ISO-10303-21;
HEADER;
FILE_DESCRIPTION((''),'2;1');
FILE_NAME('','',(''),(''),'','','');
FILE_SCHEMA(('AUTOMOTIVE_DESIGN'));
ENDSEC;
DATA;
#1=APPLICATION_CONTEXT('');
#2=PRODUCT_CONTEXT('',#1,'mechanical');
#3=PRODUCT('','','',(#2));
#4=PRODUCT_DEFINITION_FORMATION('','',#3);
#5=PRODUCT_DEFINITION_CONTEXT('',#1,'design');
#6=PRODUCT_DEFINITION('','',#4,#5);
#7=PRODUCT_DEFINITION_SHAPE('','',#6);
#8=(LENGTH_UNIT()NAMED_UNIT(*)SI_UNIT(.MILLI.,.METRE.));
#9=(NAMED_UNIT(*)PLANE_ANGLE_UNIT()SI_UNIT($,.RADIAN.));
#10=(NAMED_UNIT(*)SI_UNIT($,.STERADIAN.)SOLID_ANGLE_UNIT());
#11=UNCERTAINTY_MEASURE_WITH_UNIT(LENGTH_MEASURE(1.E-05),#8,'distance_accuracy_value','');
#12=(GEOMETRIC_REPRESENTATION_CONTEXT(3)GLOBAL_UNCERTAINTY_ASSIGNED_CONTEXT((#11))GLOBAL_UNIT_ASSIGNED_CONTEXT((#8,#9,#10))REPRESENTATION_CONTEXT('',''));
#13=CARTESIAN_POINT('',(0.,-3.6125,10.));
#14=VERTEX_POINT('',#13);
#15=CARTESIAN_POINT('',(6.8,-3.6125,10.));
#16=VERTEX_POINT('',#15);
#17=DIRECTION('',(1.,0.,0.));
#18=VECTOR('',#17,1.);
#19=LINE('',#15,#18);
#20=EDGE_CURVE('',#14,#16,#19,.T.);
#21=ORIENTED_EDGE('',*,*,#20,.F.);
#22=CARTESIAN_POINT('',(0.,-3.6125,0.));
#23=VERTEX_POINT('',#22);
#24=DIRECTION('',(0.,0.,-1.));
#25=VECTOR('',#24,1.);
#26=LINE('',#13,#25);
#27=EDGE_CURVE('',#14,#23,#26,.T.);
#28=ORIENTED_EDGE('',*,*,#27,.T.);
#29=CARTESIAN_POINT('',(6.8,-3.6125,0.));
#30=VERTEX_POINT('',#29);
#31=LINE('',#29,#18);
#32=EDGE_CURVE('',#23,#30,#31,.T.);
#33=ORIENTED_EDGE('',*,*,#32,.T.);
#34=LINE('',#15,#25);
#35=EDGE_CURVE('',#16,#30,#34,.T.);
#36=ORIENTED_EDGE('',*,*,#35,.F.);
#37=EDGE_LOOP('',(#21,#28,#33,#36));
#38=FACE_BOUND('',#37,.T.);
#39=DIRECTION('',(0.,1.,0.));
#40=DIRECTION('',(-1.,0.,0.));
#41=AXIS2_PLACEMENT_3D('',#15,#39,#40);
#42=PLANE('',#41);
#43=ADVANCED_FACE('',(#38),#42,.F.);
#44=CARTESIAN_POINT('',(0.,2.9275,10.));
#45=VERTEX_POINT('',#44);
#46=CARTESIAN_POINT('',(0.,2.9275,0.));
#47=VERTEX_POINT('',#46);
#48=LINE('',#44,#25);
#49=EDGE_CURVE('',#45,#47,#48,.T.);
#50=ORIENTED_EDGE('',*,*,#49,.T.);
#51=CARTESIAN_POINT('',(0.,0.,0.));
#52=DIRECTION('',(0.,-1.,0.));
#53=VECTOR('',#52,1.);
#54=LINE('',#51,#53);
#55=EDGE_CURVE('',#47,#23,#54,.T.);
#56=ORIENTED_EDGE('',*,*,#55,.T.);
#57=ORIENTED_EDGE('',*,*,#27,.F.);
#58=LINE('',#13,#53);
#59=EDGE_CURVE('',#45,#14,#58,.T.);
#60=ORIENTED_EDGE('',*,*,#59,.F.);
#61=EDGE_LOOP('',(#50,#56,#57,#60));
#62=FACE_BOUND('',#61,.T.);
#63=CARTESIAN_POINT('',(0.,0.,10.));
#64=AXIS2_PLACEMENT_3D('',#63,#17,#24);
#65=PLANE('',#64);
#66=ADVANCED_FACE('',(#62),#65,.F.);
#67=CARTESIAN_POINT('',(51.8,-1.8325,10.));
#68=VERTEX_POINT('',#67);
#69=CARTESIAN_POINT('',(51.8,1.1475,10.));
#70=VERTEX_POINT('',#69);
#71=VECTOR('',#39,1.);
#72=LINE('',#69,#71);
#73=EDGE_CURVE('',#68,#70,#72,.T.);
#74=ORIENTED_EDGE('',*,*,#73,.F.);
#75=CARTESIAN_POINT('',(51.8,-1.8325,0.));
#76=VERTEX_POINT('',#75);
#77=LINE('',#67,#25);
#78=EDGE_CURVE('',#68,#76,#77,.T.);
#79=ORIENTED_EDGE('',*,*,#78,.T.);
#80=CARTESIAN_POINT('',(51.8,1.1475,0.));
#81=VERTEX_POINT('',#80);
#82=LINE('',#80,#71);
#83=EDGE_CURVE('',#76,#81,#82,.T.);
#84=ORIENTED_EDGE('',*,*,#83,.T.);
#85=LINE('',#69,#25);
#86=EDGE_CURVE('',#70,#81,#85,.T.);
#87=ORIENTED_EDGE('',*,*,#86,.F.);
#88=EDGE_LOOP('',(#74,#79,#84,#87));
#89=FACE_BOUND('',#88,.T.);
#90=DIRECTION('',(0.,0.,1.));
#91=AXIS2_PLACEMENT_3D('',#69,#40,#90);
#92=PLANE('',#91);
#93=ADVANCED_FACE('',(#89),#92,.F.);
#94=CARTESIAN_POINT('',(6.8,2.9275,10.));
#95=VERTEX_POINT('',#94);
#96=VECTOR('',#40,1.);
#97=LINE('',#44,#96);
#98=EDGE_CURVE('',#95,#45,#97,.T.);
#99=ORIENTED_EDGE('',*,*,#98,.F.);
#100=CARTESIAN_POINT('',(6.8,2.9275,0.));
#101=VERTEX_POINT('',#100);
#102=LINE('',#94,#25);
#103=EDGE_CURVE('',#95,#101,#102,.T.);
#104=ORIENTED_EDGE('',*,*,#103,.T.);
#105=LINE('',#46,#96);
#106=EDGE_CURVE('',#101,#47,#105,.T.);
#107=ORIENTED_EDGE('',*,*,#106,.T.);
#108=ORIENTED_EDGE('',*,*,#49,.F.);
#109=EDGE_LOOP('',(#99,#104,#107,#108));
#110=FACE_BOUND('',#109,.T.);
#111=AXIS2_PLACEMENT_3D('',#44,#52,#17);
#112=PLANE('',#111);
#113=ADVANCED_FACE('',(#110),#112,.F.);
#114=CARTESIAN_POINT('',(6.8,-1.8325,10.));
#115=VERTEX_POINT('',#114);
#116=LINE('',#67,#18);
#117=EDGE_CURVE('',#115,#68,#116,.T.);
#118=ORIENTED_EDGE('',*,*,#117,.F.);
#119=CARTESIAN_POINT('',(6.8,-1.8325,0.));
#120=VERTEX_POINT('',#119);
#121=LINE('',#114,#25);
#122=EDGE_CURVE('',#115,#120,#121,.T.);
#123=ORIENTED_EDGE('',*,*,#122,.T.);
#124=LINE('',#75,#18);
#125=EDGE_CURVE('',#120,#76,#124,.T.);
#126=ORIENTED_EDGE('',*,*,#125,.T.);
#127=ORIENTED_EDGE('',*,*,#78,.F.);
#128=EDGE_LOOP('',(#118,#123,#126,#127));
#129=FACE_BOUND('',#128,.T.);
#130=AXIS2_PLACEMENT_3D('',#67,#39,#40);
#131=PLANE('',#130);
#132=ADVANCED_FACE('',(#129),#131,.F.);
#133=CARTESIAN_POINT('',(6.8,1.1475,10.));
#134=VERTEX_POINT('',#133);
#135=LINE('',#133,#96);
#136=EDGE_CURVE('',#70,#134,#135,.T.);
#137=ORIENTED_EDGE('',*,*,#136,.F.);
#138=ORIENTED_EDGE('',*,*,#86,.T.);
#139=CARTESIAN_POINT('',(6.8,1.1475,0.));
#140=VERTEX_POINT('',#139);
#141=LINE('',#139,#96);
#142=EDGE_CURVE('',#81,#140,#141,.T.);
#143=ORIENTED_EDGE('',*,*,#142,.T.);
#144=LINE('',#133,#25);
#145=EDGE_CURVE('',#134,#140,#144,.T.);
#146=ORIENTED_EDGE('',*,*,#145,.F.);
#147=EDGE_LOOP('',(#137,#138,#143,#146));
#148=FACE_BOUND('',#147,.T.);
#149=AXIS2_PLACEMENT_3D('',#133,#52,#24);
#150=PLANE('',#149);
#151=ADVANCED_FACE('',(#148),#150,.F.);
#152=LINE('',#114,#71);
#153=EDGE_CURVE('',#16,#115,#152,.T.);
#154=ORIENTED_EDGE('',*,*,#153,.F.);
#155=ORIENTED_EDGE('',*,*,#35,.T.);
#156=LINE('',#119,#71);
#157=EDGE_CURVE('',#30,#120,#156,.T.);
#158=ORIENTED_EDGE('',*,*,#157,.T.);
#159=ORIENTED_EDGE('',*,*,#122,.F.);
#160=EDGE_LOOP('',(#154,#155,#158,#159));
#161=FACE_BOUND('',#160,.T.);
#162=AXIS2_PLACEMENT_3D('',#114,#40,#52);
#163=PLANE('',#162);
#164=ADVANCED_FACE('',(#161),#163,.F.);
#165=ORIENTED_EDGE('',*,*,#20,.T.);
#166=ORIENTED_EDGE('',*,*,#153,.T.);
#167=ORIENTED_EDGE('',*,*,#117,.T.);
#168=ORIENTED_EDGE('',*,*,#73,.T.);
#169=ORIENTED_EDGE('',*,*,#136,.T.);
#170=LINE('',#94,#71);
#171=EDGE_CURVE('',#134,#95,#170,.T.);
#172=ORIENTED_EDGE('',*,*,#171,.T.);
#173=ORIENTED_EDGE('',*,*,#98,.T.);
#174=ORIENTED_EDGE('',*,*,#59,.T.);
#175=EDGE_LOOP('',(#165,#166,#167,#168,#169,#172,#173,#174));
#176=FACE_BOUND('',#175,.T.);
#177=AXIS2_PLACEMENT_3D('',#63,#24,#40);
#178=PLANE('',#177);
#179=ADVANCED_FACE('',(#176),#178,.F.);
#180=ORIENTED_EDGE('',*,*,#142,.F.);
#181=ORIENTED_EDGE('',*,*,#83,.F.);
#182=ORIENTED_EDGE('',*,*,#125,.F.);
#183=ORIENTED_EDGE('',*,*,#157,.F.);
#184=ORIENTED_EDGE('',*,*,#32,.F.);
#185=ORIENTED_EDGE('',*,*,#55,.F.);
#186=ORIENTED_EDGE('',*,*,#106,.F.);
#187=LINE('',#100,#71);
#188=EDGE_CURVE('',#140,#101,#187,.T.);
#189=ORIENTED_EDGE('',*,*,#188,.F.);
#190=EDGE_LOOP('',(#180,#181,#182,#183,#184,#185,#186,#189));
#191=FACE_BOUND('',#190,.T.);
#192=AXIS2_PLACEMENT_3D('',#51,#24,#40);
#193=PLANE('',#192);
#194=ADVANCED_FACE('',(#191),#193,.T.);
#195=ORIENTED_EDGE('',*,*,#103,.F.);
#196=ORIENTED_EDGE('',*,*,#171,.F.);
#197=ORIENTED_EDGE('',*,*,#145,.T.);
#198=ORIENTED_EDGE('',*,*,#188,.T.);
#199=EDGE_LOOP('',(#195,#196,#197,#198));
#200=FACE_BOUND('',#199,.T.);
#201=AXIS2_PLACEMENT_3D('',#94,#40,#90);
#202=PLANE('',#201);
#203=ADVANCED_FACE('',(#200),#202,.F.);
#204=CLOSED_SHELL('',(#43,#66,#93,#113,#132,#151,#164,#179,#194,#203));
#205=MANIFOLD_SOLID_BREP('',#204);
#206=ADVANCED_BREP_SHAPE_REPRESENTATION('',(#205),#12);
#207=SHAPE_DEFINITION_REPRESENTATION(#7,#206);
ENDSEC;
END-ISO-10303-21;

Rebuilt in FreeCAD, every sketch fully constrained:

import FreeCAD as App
import Part
import Sketcher
Q = App.Units.Quantity


def add_polygon(sketch, points):
    """Adds a closed chain of lines whose ends are joined by coincident constraints."""
    first, n = sketch.GeometryCount, len(points)
    for a, b in zip(points, points[1:] + points[:1]):
        sketch.addGeometry(Part.LineSegment(App.Vector(*a, 0), App.Vector(*b, 0)), False)
    for i in range(n):
        sketch.addConstraint(Sketcher.Constraint("Coincident", first + i, 2, first + (i + 1) % n, 1))

doc = App.newDocument("Part")
params = doc.addObject("Spreadsheet::Sheet", "Params")
for row, (alias, value) in enumerate([
    ("sketch1_width", "45 mm"),
    ("sketch1_width2", "6.8 mm"),
    ("sketch1_height", "6.54 mm"),
    ("sketch1_height2", "1.78 mm"),
    ("pad1_length", "10 mm"),
], start=1):
    params.set(f"A{row}", alias)
    params.set(f"B{row}", "=" + value)
    params.setAlias(f"B{row}", alias)

body = doc.addObject("PartDesign::Body", "Body")

sketch1 = body.newObject("Sketcher::SketchObject", "Sketch")
sketch1.AttachmentSupport = (doc.getObject("XY_Plane"), [""])
sketch1.MapMode = "FlatFace"
add_polygon(sketch1, [(0, 2.9275), (0, -3.6125), (6.8, -3.6125), (6.8, -1.8325), (51.8, -1.8325), (51.8, 1.1475), (6.8, 1.1475), (6.8, 2.9275)])
sketch1.addConstraint(Sketcher.Constraint("Vertical", 0))
sketch1.addConstraint(Sketcher.Constraint("Horizontal", 1))
sketch1.addConstraint(Sketcher.Constraint("Vertical", 2))
sketch1.addConstraint(Sketcher.Constraint("Horizontal", 3))
sketch1.addConstraint(Sketcher.Constraint("Vertical", 4))
sketch1.addConstraint(Sketcher.Constraint("Horizontal", 5))
sketch1.addConstraint(Sketcher.Constraint("Vertical", 6))
sketch1.addConstraint(Sketcher.Constraint("Horizontal", 7))
sketch1.addConstraint(Sketcher.Constraint("PointOnObject", 0, 2, -2))
sketch1.addConstraint(Sketcher.Constraint("Vertical", 2, 2, 5, 2))
sketch1.addConstraint(Sketcher.Constraint("Equal", 2, 6))
sketch1.addConstraint(Sketcher.Constraint("DistanceX", 3, 1, 3, 2, Q("45 mm")))
sketch1.addConstraint(Sketcher.Constraint("DistanceX", 1, 1, 1, 2, Q("6.8 mm")))
sketch1.addConstraint(Sketcher.Constraint("DistanceY", 0, 2, 0, 1, Q("6.54 mm")))
sketch1.addConstraint(Sketcher.Constraint("DistanceY", 2, 1, 2, 2, Q("1.78 mm")))
sketch1.addConstraint(Sketcher.Constraint("DistanceY", 0, 2, -1, 1, Q("3.6125 mm")))
sketch1.setExpression("Constraints[19]", "Params.sketch1_width")
sketch1.setExpression("Constraints[20]", "Params.sketch1_width2")
sketch1.setExpression("Constraints[21]", "Params.sketch1_height")
sketch1.setExpression("Constraints[22]", "Params.sketch1_height2")
pad1 = body.newObject("PartDesign::Pad", "Pad")
pad1.Profile = sketch1
pad1.setExpression("Length", "Params.pad1_length")

doc.recompute()
